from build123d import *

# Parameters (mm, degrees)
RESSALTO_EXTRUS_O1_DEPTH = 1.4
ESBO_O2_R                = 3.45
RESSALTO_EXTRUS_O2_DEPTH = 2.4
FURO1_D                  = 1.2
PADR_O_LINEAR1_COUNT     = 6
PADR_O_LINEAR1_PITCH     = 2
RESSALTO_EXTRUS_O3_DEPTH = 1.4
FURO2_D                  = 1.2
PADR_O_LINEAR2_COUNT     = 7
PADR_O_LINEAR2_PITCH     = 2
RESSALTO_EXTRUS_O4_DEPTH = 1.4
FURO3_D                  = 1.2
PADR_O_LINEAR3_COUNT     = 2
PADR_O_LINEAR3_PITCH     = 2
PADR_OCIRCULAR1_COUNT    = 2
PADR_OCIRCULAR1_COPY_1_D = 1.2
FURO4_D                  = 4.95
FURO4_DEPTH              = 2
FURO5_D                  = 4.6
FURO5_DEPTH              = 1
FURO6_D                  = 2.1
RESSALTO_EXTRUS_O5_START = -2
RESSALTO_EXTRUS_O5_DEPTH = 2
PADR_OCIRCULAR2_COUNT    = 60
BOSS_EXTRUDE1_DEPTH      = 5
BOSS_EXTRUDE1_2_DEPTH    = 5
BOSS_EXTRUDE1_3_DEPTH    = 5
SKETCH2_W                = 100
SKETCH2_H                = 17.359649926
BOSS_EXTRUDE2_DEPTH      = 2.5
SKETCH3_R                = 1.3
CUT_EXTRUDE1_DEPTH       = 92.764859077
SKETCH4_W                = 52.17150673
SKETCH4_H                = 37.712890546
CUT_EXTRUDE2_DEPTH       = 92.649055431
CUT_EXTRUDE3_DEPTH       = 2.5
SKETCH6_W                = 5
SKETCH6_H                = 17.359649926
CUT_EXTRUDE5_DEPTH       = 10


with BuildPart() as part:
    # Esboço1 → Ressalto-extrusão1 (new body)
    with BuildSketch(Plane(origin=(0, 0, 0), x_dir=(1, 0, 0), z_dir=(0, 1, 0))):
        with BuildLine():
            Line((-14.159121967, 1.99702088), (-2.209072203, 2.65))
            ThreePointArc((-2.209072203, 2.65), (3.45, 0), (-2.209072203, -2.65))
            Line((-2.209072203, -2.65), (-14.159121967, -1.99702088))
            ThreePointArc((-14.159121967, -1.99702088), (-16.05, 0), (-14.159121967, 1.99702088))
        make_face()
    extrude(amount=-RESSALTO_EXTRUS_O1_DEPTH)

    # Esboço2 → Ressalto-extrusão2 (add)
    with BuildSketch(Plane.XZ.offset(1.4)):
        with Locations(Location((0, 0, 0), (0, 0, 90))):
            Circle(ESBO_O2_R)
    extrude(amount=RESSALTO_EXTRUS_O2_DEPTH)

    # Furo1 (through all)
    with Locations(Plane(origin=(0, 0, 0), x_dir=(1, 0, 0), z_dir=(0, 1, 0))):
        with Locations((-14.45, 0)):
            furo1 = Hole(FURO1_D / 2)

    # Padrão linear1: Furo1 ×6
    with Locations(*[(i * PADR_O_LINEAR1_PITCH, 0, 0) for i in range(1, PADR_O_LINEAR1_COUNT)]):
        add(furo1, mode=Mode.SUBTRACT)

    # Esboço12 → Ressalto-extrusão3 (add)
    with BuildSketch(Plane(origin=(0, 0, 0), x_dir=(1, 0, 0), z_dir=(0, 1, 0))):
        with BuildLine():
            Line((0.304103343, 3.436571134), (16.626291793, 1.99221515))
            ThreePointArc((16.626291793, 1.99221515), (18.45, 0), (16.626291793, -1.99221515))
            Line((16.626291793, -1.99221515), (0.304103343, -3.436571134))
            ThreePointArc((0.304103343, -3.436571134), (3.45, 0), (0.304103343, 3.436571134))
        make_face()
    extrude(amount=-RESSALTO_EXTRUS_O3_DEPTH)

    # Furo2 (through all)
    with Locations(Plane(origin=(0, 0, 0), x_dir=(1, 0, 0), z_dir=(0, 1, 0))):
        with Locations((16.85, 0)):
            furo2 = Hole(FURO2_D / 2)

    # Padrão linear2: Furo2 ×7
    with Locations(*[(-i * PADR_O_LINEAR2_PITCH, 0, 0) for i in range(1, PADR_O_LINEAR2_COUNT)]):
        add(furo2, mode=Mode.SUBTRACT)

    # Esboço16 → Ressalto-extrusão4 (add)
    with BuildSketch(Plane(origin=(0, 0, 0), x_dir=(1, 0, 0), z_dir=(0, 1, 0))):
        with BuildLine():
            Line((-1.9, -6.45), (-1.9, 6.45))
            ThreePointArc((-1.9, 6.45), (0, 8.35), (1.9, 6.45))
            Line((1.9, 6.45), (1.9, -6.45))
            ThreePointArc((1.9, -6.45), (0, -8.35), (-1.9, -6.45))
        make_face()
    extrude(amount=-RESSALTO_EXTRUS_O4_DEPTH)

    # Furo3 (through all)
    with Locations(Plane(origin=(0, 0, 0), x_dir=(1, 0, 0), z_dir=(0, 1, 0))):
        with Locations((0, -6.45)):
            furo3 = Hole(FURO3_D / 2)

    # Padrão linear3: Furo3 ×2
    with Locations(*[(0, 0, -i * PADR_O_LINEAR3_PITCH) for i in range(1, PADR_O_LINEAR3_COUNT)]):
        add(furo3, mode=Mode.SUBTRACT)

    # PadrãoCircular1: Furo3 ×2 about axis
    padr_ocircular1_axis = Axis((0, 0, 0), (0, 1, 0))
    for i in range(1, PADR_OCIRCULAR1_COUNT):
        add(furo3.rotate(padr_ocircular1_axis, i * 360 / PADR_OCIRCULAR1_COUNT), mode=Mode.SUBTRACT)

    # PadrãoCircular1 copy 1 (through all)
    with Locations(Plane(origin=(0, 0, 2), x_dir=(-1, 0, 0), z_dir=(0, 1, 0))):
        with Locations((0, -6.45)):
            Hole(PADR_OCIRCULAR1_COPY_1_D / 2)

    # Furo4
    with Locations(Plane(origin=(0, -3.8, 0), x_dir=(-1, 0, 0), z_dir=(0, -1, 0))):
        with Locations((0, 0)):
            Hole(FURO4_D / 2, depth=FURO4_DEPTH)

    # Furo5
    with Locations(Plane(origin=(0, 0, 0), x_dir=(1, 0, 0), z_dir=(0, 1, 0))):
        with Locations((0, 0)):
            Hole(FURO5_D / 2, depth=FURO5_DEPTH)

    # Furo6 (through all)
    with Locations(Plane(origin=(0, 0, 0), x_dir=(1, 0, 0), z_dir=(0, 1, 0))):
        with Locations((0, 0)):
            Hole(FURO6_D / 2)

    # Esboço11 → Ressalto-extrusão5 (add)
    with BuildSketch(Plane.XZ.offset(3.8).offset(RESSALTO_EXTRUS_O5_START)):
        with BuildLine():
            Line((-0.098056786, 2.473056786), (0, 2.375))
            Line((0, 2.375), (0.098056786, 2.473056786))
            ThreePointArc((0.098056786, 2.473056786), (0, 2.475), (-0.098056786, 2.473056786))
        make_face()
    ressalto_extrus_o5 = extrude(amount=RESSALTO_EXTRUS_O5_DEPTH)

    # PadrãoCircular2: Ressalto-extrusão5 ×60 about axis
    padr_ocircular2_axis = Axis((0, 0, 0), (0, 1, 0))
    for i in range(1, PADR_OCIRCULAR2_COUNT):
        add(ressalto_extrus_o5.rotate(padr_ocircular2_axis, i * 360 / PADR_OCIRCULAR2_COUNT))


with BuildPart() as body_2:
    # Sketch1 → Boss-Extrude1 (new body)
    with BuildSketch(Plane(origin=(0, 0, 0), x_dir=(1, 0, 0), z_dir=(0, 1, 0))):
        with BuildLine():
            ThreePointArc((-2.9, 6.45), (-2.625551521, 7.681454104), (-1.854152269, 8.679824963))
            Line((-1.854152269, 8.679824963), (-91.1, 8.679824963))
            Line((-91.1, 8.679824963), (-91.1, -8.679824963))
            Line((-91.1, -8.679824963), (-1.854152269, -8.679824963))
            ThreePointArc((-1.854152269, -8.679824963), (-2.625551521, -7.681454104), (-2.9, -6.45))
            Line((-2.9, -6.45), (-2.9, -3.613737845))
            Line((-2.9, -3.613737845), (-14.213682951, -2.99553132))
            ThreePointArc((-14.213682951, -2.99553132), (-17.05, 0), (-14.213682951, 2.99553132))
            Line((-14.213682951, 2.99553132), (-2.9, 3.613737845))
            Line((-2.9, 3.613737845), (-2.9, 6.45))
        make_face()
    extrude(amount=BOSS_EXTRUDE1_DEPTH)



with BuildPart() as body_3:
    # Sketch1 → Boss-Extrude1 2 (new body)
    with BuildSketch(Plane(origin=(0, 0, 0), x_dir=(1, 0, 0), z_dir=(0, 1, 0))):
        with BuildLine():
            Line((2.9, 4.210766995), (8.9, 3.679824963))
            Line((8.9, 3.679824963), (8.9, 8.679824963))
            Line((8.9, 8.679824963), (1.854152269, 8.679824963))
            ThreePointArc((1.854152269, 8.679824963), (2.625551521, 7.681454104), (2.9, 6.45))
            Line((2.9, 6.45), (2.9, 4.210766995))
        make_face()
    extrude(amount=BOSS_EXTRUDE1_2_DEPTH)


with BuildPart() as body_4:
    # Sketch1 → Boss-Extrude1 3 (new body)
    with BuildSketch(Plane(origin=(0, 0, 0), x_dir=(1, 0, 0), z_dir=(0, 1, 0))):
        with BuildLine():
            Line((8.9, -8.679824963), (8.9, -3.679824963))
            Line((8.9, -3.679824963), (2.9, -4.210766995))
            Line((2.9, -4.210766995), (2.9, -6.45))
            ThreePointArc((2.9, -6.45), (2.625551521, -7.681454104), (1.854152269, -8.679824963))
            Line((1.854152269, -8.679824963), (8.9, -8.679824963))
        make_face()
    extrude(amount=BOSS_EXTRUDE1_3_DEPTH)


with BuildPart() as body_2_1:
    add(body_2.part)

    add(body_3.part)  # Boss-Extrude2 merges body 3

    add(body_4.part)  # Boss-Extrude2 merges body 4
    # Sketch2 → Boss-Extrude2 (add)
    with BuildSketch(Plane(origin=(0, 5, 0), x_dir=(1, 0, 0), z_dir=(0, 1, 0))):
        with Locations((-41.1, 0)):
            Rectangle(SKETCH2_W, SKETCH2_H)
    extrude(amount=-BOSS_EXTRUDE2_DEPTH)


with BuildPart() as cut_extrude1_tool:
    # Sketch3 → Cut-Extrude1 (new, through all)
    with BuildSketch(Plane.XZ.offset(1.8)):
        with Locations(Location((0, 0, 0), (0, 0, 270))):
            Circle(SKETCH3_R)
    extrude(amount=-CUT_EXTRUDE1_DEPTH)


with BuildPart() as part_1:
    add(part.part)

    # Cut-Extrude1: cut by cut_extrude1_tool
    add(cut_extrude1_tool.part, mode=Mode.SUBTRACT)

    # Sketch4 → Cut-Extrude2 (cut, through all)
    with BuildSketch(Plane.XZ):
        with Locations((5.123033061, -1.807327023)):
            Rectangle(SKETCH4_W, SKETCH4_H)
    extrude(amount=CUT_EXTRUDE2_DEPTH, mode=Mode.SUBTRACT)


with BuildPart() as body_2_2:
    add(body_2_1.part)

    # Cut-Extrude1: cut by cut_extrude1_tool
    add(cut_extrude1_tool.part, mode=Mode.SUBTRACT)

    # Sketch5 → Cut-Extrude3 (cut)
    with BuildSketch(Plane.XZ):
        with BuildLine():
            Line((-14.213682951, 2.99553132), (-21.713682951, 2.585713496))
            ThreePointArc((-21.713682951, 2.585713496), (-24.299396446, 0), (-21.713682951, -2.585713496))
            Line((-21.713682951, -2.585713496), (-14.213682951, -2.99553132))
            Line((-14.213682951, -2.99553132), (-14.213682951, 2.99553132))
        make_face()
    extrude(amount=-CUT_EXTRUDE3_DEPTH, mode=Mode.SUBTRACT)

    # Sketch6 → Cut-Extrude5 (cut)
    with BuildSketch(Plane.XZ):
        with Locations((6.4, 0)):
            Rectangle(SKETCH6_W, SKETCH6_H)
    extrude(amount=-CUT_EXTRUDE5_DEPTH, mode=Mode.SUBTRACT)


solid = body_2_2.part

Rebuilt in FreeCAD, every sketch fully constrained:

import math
import FreeCAD as App
import Part
import Sketcher


def add_polygon(sketch, points):
    """Adds a closed chain of lines whose ends are joined by coincident constraints."""
    first, n = sketch.GeometryCount, len(points)
    for a, b in zip(points, points[1:] + points[:1]):
        sketch.addGeometry(Part.LineSegment(App.Vector(*a, 0), App.Vector(*b, 0)), False)
    for i in range(n):
        sketch.addConstraint(Sketcher.Constraint("Coincident", first + i, 2, first + (i + 1) % n, 1))

doc = App.newDocument("Part")
body = doc.addObject("PartDesign::Body", "Body")

# Sketch on XZ plane
sketch1 = body.newObject("Sketcher::SketchObject", "Sketch")
sketch1.AttachmentSupport = (doc.getObject("XZ_Plane"), [""])
sketch1.MapMode = "FlatFace"
sketch1.addGeometry(Part.LineSegment(App.Vector(-2.2, -2.6, 0), App.Vector(-14.2, -2, 0)), False)
sketch1.addGeometry(Part.ArcOfCircle(Part.Circle(App.Vector(-14.1, 0, 0), App.Vector(0, 0, 1), 2), math.radians(93), math.radians(267)), False)
sketch1.addGeometry(Part.LineSegment(App.Vector(-14.2, 2, 0), App.Vector(-2.2, 2.6, 0)), False)
sketch1.addGeometry(Part.ArcOfCircle(Part.Circle(App.Vector(0, 0, 0), App.Vector(0, 0, 1), 3.5), math.radians(-130), math.radians(130)), False)
sketch1.addConstraint(Sketcher.Constraint("Tangent", 0, 2, 1, 2))
sketch1.addConstraint(Sketcher.Constraint("Tangent", 1, 1, 2, 1))
sketch1.addConstraint(Sketcher.Constraint("Coincident", 2, 2, 3, 2))
sketch1.addConstraint(Sketcher.Constraint("Coincident", 3, 1, 0, 1))
sketch1.addConstraint(Sketcher.Constraint("Coincident", 3, 3, -1, 1))
sketch1.addConstraint(Sketcher.Constraint("Symmetric", 0, 2, 1, 1, -1))
sketch1.addConstraint(Sketcher.Constraint("Radius", 1, 2.0))
sketch1.addConstraint(Sketcher.Constraint("Radius", 3, 3.45))
sketch1.addConstraint(Sketcher.Constraint("DistanceY", 3, 1, 2, 2, 5.3))
sketch1.addConstraint(Sketcher.Constraint("DistanceX", 1, 3, -1, 1, 14.05))
pad1 = body.newObject("PartDesign::Pad", "Pad")
pad1.Profile = sketch1
pad1.Length = 1.4

# Sketch on XZ plane
sketch2 = body.newObject("Sketcher::SketchObject", "Sketch001")
sketch2.AttachmentSupport = (doc.getObject("XZ_Plane"), [""])
sketch2.MapMode = "FlatFace"
sketch2.AttachmentOffset = App.Placement(App.Vector(0, 0, 1.4), App.Rotation())
sketch2.addGeometry(Part.Circle(App.Vector(0, 0, 0), App.Vector(0, 0, 1), 3.5), False)
sketch2.addConstraint(Sketcher.Constraint("Coincident", 0, 3, -1, 1))
sketch2.addConstraint(Sketcher.Constraint("Diameter", 0, 6.9))
pad2 = body.newObject("PartDesign::Pad", "Pad001")
pad2.Profile = sketch2
pad2.Length = 2.4

# Sketch on XZ plane
sketch3 = body.newObject("Sketcher::SketchObject", "Sketch002")
sketch3.AttachmentSupport = (doc.getObject("XZ_Plane"), [""])
sketch3.MapMode = "FlatFace"
sketch3.addGeometry(Part.Circle(App.Vector(-14.4, 0, 0), App.Vector(0, 0, 1), 0.6), False)
sketch3.addConstraint(Sketcher.Constraint("PointOnObject", 0, 3, -1))
sketch3.addConstraint(Sketcher.Constraint("Diameter", 0, 1.2))
sketch3.addConstraint(Sketcher.Constraint("DistanceX", 0, 3, -1, 1, 14.45))
doc.recompute()
hole = body.newObject("PartDesign::Hole", "Hole")
hole.Profile = sketch3
hole.ThreadType = "None"
hole.Diameter = 1.2
hole.DepthType = "ThroughAll"
hole.Reversed = True
doc.recompute()

linearpattern = body.newObject("PartDesign::LinearPattern", "LinearPattern")
linearpattern.Originals = [hole]
linearpattern.Direction = (doc.getObject("X_Axis"), [""])
linearpattern.Mode = "offset"
linearpattern.Offset = 2
linearpattern.Occurrences = 6
body.Tip = linearpattern

# Sketch on XZ plane
sketch4 = body.newObject("Sketcher::SketchObject", "Sketch003")
sketch4.AttachmentSupport = (doc.getObject("XZ_Plane"), [""])
sketch4.MapMode = "FlatFace"
sketch4.addGeometry(Part.LineSegment(App.Vector(16.6, -2, 0), App.Vector(0.3, -3.4, 0)), False)
sketch4.addGeometry(Part.ArcOfCircle(Part.Circle(App.Vector(0, 0, 0), App.Vector(0, 0, 1), 3.5), math.radians(-85), math.radians(85)), False)
sketch4.addGeometry(Part.LineSegment(App.Vector(0.3, 3.4, 0), App.Vector(16.6, 2, 0)), False)
sketch4.addGeometry(Part.ArcOfCircle(Part.Circle(App.Vector(16.4, 0, 0), App.Vector(0, 0, 1), 2), math.radians(-85), math.radians(85)), False)
sketch4.addConstraint(Sketcher.Constraint("Tangent", 0, 2, 1, 1))
sketch4.addConstraint(Sketcher.Constraint("Tangent", 1, 2, 2, 1))
sketch4.addConstraint(Sketcher.Constraint("Tangent", 2, 2, 3, 2))
sketch4.addConstraint(Sketcher.Constraint("Tangent", 3, 1, 0, 1))
sketch4.addConstraint(Sketcher.Constraint("Coincident", 1, 3, -1, 1))
sketch4.addConstraint(Sketcher.Constraint("PointOnObject", 3, 3, -1))
sketch4.addConstraint(Sketcher.Constraint("Radius", 3, 2.0))
sketch4.addConstraint(Sketcher.Constraint("Radius", 1, 3.45))
sketch4.addConstraint(Sketcher.Constraint("DistanceX", -1, 1, 3, 3, 16.45))
pad3 = body.newObject("PartDesign::Pad", "Pad002")
pad3.Profile = sketch4
pad3.Length = 1.4

# Sketch on XZ plane
sketch5 = body.newObject("Sketcher::SketchObject", "Sketch004")
sketch5.AttachmentSupport = (doc.getObject("XZ_Plane"), [""])
sketch5.MapMode = "FlatFace"
sketch5.addGeometry(Part.Circle(App.Vector(16.9, 0, 0), App.Vector(0, 0, 1), 0.6), False)
sketch5.addConstraint(Sketcher.Constraint("PointOnObject", 0, 3, -1))
sketch5.addConstraint(Sketcher.Constraint("Diameter", 0, 1.2))
sketch5.addConstraint(Sketcher.Constraint("DistanceX", -1, 1, 0, 3, 16.85))
doc.recompute()
hole2 = body.newObject("PartDesign::Hole", "Hole001")
hole2.Profile = sketch5
hole2.ThreadType = "None"
hole2.Diameter = 1.2
hole2.DepthType = "ThroughAll"
hole2.Reversed = True
doc.recompute()

linearpattern2 = body.newObject("PartDesign::LinearPattern", "LinearPattern001")
linearpattern2.Originals = [hole2]
linearpattern2.Direction = (doc.getObject("X_Axis"), [""])
linearpattern2.Mode = "offset"
linearpattern2.Offset = 2
linearpattern2.Occurrences = 7
linearpattern2.Reversed = True
body.Tip = linearpattern2

# Sketch on XZ plane
sketch6 = body.newObject("Sketcher::SketchObject", "Sketch005")
sketch6.AttachmentSupport = (doc.getObject("XZ_Plane"), [""])
sketch6.MapMode = "FlatFace"
sketch6.addGeometry(Part.LineSegment(App.Vector(-1.9, -6.5, 0), App.Vector(-1.9, 6.5, 0)), False)
sketch6.addGeometry(Part.ArcOfCircle(Part.Circle(App.Vector(0, 6.5, 0), App.Vector(0, 0, 1), 1.9), math.radians(0), math.radians(180)), False)
sketch6.addGeometry(Part.LineSegment(App.Vector(1.9, 6.5, 0), App.Vector(1.9, -6.5, 0)), False)
sketch6.addGeometry(Part.ArcOfCircle(Part.Circle(App.Vector(0, -6.5, 0), App.Vector(0, 0, 1), 1.9), math.radians(180), math.radians(360)), False)
sketch6.addConstraint(Sketcher.Constraint("Tangent", 0, 2, 1, 2))
sketch6.addConstraint(Sketcher.Constraint("Tangent", 1, 1, 2, 1))
sketch6.addConstraint(Sketcher.Constraint("Tangent", 2, 2, 3, 2))
sketch6.addConstraint(Sketcher.Constraint("Tangent", 3, 1, 0, 1))
sketch6.addConstraint(Sketcher.Constraint("Vertical", 0))
sketch6.addConstraint(Sketcher.Constraint("Vertical", 2))
sketch6.addConstraint(Sketcher.Constraint("Symmetric", 1, 3, 3, 3, -1, 1))
sketch6.addConstraint(Sketcher.Constraint("Radius", 1, 1.9))
sketch6.addConstraint(Sketcher.Constraint("DistanceY", 0, 1, 0, 2, 12.9))
pad4 = body.newObject("PartDesign::Pad", "Pad003")
pad4.Profile = sketch6
pad4.Length = 1.4

# Sketch on XZ plane
sketch7 = body.newObject("Sketcher::SketchObject", "Sketch006")
sketch7.AttachmentSupport = (doc.getObject("XZ_Plane"), [""])
sketch7.MapMode = "FlatFace"
sketch7.addGeometry(Part.Circle(App.Vector(0, 6.5, 0), App.Vector(0, 0, 1), 0.6), False)
sketch7.addConstraint(Sketcher.Constraint("PointOnObject", 0, 3, -2))
sketch7.addConstraint(Sketcher.Constraint("Diameter", 0, 1.2))
sketch7.addConstraint(Sketcher.Constraint("DistanceY", -1, 1, 0, 3, 6.45))
doc.recompute()
hole3 = body.newObject("PartDesign::Hole", "Hole002")
hole3.Profile = sketch7
hole3.ThreadType = "None"
hole3.Diameter = 1.2
hole3.DepthType = "ThroughAll"
hole3.Reversed = True
doc.recompute()

linearpattern3 = body.newObject("PartDesign::LinearPattern", "LinearPattern002")
linearpattern3.Originals = [hole3]
linearpattern3.Direction = (doc.getObject("Z_Axis"), [""])
linearpattern3.Mode = "offset"
linearpattern3.Offset = 2
linearpattern3.Occurrences = 2
linearpattern3.Reversed = True
body.Tip = linearpattern3
doc.recompute()

polarpattern = body.newObject("PartDesign::PolarPattern", "PolarPattern")
polarpattern.Originals = [hole3]
polarpattern.Axis = (doc.getObject("Y_Axis"), [""])
polarpattern.Angle = 360
polarpattern.Occurrences = 2
body.Tip = polarpattern

# Sketch on XZ plane
sketch8 = body.newObject("Sketcher::SketchObject", "Sketch007")
sketch8.AttachmentSupport = (doc.getObject("XZ_Plane"), [""])
sketch8.MapMode = "FlatFace"
sketch8.addGeometry(Part.Circle(App.Vector(0, -4.5, 0), App.Vector(0, 0, 1), 0.6), False)
sketch8.addConstraint(Sketcher.Constraint("PointOnObject", 0, 3, -2))
sketch8.addConstraint(Sketcher.Constraint("Diameter", 0, 1.2))
sketch8.addConstraint(Sketcher.Constraint("DistanceY", 0, 3, -1, 1, 4.45))
doc.recompute()
hole4 = body.newObject("PartDesign::Hole", "Hole003")
hole4.Profile = sketch8
hole4.ThreadType = "None"
hole4.Diameter = 1.2
hole4.DepthType = "ThroughAll"
hole4.Reversed = True

# Sketch on XZ plane
sketch9 = body.newObject("Sketcher::SketchObject", "Sketch008")
sketch9.AttachmentSupport = (doc.getObject("XZ_Plane"), [""])
sketch9.MapMode = "FlatFace"
sketch9.AttachmentOffset = App.Placement(App.Vector(0, 0, 3.8), App.Rotation())
sketch9.addGeometry(Part.Circle(App.Vector(0, 0, 0), App.Vector(0, 0, 1), 2.5), False)
sketch9.addConstraint(Sketcher.Constraint("Coincident", 0, 3, -1, 1))
sketch9.addConstraint(Sketcher.Constraint("Diameter", 0, 4.95))
doc.recompute()
hole5 = body.newObject("PartDesign::Hole", "Hole004")
hole5.Profile = sketch9
hole5.ThreadType = "None"
hole5.Diameter = 4.95
hole5.DepthType = "Dimension"
hole5.Depth = 2
hole5.DrillPoint = "Flat"

# Sketch on XZ plane
sketch10 = body.newObject("Sketcher::SketchObject", "Sketch009")
sketch10.AttachmentSupport = (doc.getObject("XZ_Plane"), [""])
sketch10.MapMode = "FlatFace"
sketch10.addGeometry(Part.Circle(App.Vector(0, 0, 0), App.Vector(0, 0, 1), 2.3), False)
sketch10.addConstraint(Sketcher.Constraint("Coincident", 0, 3, -1, 1))
sketch10.addConstraint(Sketcher.Constraint("Diameter", 0, 4.6))
doc.recompute()
hole6 = body.newObject("PartDesign::Hole", "Hole005")
hole6.Profile = sketch10
hole6.ThreadType = "None"
hole6.Diameter = 4.6
hole6.DepthType = "Dimension"
hole6.Depth = 1
hole6.DrillPoint = "Flat"
hole6.Reversed = True

# Sketch on XZ plane
sketch11 = body.newObject("Sketcher::SketchObject", "Sketch010")
sketch11.AttachmentSupport = (doc.getObject("XZ_Plane"), [""])
sketch11.MapMode = "FlatFace"
sketch11.addGeometry(Part.Circle(App.Vector(0, 0, 0), App.Vector(0, 0, 1), 1.1), False)
sketch11.addConstraint(Sketcher.Constraint("Coincident", 0, 3, -1, 1))
sketch11.addConstraint(Sketcher.Constraint("Diameter", 0, 2.1))
doc.recompute()
hole7 = body.newObject("PartDesign::Hole", "Hole006")
hole7.Profile = sketch11
hole7.ThreadType = "None"
hole7.Diameter = 2.1
hole7.DepthType = "ThroughAll"
hole7.Reversed = True

# Sketch on XZ plane
sketch12 = body.newObject("Sketcher::SketchObject", "Sketch011")
sketch12.AttachmentSupport = (doc.getObject("XZ_Plane"), [""])
sketch12.MapMode = "FlatFace"
sketch12.AttachmentOffset = App.Placement(App.Vector(0, 0, 1.8), App.Rotation())
sketch12.addGeometry(Part.LineSegment(App.Vector(-0.1, 2.47, 0), App.Vector(0, 2.38, 0)), False)
sketch12.addGeometry(Part.LineSegment(App.Vector(0, 2.38, 0), App.Vector(0.1, 2.47, 0)), False)
sketch12.addGeometry(Part.ArcOfCircle(Part.Circle(App.Vector(0, 0, 0), App.Vector(0, 0, 1), 2.48), math.radians(87.73), math.radians(92.27)), False)
sketch12.addConstraint(Sketcher.Constraint("Coincident", 0, 2, 1, 1))
sketch12.addConstraint(Sketcher.Constraint("Coincident", 1, 2, 2, 1))
sketch12.addConstraint(Sketcher.Constraint("Coincident", 2, 2, 0, 1))
sketch12.addConstraint(Sketcher.Constraint("Coincident", 2, 3, -1, 1))
sketch12.addConstraint(Sketcher.Constraint("PointOnObject", 0, 2, -2))
sketch12.addConstraint(Sketcher.Constraint("Perpendicular", 0, 1))
sketch12.addConstraint(Sketcher.Constraint("Horizontal", 1, 2, 2, 2))
sketch12.addConstraint(Sketcher.Constraint("Radius", 2, 2.475))
sketch12.addConstraint(Sketcher.Constraint("DistanceY", -1, 1, 0, 2, 2.375))
pad5 = body.newObject("PartDesign::Pad", "Pad004")
pad5.Profile = sketch12
pad5.Length = 2
doc.recompute()

polarpattern2 = body.newObject("PartDesign::PolarPattern", "PolarPattern001")
polarpattern2.Originals = [pad5]
polarpattern2.Axis = (doc.getObject("Y_Axis"), [""])
polarpattern2.Angle = 360
polarpattern2.Occurrences = 60
body.Tip = polarpattern2
body2 = doc.addObject("PartDesign::Body", "Body001")

# Sketch on XZ plane
sketch13 = body2.newObject("Sketcher::SketchObject", "Sketch012")
sketch13.AttachmentSupport = (doc.getObject("XZ_Plane001"), [""])
sketch13.MapMode = "FlatFace"
sketch13.addGeometry(Part.ArcOfCircle(Part.Circle(App.Vector(0, -6.4, 0), App.Vector(0, 0, 1), 2.9), math.radians(-180), math.radians(-130)), False)
sketch13.addGeometry(Part.LineSegment(App.Vector(-1.9, -8.7, 0), App.Vector(-91.1, -8.7, 0)), False)
sketch13.addGeometry(Part.LineSegment(App.Vector(-91.1, -8.7, 0), App.Vector(-91.1, 8.7, 0)), False)
sketch13.addGeometry(Part.LineSegment(App.Vector(-91.1, 8.7, 0), App.Vector(-1.9, 8.7, 0)), False)
sketch13.addGeometry(Part.ArcOfCircle(Part.Circle(App.Vector(0, 6.4, 0), App.Vector(0, 0, 1), 2.9), math.radians(130), math.radians(180)), False)
sketch13.addGeometry(Part.LineSegment(App.Vector(-2.9, 6.5, 0), App.Vector(-2.9, 3.6, 0)), False)
sketch13.addGeometry(Part.LineSegment(App.Vector(-2.9, 3.6, 0), App.Vector(-14.2, 3, 0)), False)
sketch13.addGeometry(Part.ArcOfCircle(Part.Circle(App.Vector(-14.1, 0, 0), App.Vector(0, 0, 1), 3), math.radians(93), math.radians(267)), False)
sketch13.addGeometry(Part.LineSegment(App.Vector(-14.2, -3, 0), App.Vector(-2.9, -3.6, 0)), False)
sketch13.addGeometry(Part.LineSegment(App.Vector(-2.9, -3.6, 0), App.Vector(-2.9, -6.5, 0)), False)
sketch13.addConstraint(Sketcher.Constraint("Coincident", 0, 2, 1, 1))
sketch13.addConstraint(Sketcher.Constraint("Coincident", 1, 2, 2, 1))
sketch13.addConstraint(Sketcher.Constraint("Coincident", 2, 2, 3, 1))
sketch13.addConstraint(Sketcher.Constraint("Coincident", 3, 2, 4, 1))
sketch13.addConstraint(Sketcher.Constraint("Tangent", 4, 2, 5, 1))
sketch13.addConstraint(Sketcher.Constraint("Coincident", 5, 2, 6, 1))
sketch13.addConstraint(Sketcher.Constraint("Tangent", 6, 2, 7, 1))
sketch13.addConstraint(Sketcher.Constraint("Tangent", 7, 2, 8, 1))
sketch13.addConstraint(Sketcher.Constraint("Coincident", 8, 2, 9, 1))
sketch13.addConstraint(Sketcher.Constraint("Tangent", 9, 2, 0, 1))
sketch13.addConstraint(Sketcher.Constraint("Horizontal", 1))
sketch13.addConstraint(Sketcher.Constraint("Vertical", 2))
sketch13.addConstraint(Sketcher.Constraint("Horizontal", 3))
sketch13.addConstraint(Sketcher.Constraint("Vertical", 5))
sketch13.addConstraint(Sketcher.Constraint("Vertical", 9))
sketch13.addConstraint(Sketcher.Constraint("Equal", 0, 4))
sketch13.addConstraint(Sketcher.Constraint("Symmetric", 0, 3, 4, 3, -1, 1))
sketch13.addConstraint(Sketcher.Constraint("Symmetric", 0, 2, 3, 2, -1))
sketch13.addConstraint(Sketcher.Constraint("Symmetric", 6, 2, 7, 2, -1))
sketch13.addConstraint(Sketcher.Constraint("Radius", 7, 3.0))
sketch13.addConstraint(Sketcher.Constraint("Radius", 0, 2.9))
sketch13.addConstraint(Sketcher.Constraint("DistanceX", 1, 2, -1, 1, 91.1))
sketch13.addConstraint(Sketcher.Constraint("DistanceY", 0, 3, 4, 3, 12.9))
sketch13.addConstraint(Sketcher.Constraint("DistanceX", 7, 3, -1, 1, 14.05))
sketch13.addConstraint(Sketcher.Constraint("DistanceY", 2, 1, 2, 2, 17.35965))
sketch13.addConstraint(Sketcher.Constraint("Distance", 6, 11.33056))
pad6 = body2.newObject("PartDesign::Pad", "Pad005")
pad6.Profile = sketch13
pad6.Length = 5
pad6.Reversed = True
body3 = doc.addObject("PartDesign::Body", "Body002")

# Sketch on XZ plane
sketch14 = body3.newObject("Sketcher::SketchObject", "Sketch013")
sketch14.AttachmentSupport = (doc.getObject("XZ_Plane002"), [""])
sketch14.MapMode = "FlatFace"
sketch14.addGeometry(Part.LineSegment(App.Vector(2.9, -4.2, 0), App.Vector(8.9, -3.7, 0)), False)
sketch14.addGeometry(Part.LineSegment(App.Vector(8.9, -3.7, 0), App.Vector(8.9, -8.7, 0)), False)
sketch14.addGeometry(Part.LineSegment(App.Vector(8.9, -8.7, 0), App.Vector(1.9, -8.7, 0)), False)
sketch14.addGeometry(Part.ArcOfCircle(Part.Circle(App.Vector(0, -6.4, 0), App.Vector(0, 0, 1), 2.9), math.radians(-50), math.radians(0)), False)
sketch14.addGeometry(Part.LineSegment(App.Vector(2.9, -6.5, 0), App.Vector(2.9, -4.2, 0)), False)
sketch14.addConstraint(Sketcher.Constraint("Coincident", 0, 2, 1, 1))
sketch14.addConstraint(Sketcher.Constraint("Coincident", 1, 2, 2, 1))
sketch14.addConstraint(Sketcher.Constraint("Coincident", 2, 2, 3, 1))
sketch14.addConstraint(Sketcher.Constraint("Tangent", 3, 2, 4, 1))
sketch14.addConstraint(Sketcher.Constraint("Coincident", 4, 2, 0, 1))
sketch14.addConstraint(Sketcher.Constraint("Vertical", 1))
sketch14.addConstraint(Sketcher.Constraint("Horizontal", 2))
sketch14.addConstraint(Sketcher.Constraint("Vertical", 4))
sketch14.addConstraint(Sketcher.Constraint("PointOnObject", 3, 3, -2))
sketch14.addConstraint(Sketcher.Constraint("Radius", 3, 2.9))
sketch14.addConstraint(Sketcher.Constraint("DistanceY", 1, 2, 1, 1, 5.0))
sketch14.addConstraint(Sketcher.Constraint("DistanceX", 3, 2, 1, 2, 6.0))
sketch14.addConstraint(Sketcher.Constraint("DistanceY", 3, 3, -1, 1, 6.45))
sketch14.addConstraint(Sketcher.Constraint("DistanceX", 2, 2, 2, 1, 7.045848))
sketch14.addConstraint(Sketcher.Constraint("DistanceY", 4, 1, 4, 2, 2.239233))
pad7 = body3.newObject("PartDesign::Pad", "Pad006")
pad7.Profile = sketch14
pad7.Length = 5
pad7.Reversed = True
body4 = doc.addObject("PartDesign::Body", "Body003")

# Sketch on XZ plane
sketch15 = body4.newObject("Sketcher::SketchObject", "Sketch014")
sketch15.AttachmentSupport = (doc.getObject("XZ_Plane003"), [""])
sketch15.MapMode = "FlatFace"
sketch15.addGeometry(Part.LineSegment(App.Vector(8.9, 8.7, 0), App.Vector(8.9, 3.7, 0)), False)
sketch15.addGeometry(Part.LineSegment(App.Vector(8.9, 3.7, 0), App.Vector(2.9, 4.2, 0)), False)
sketch15.addGeometry(Part.LineSegment(App.Vector(2.9, 4.2, 0), App.Vector(2.9, 6.5, 0)), False)
sketch15.addGeometry(Part.ArcOfCircle(Part.Circle(App.Vector(0, 6.4, 0), App.Vector(0, 0, 1), 2.9), math.radians(0), math.radians(50)), False)
sketch15.addGeometry(Part.LineSegment(App.Vector(1.9, 8.7, 0), App.Vector(8.9, 8.7, 0)), False)
sketch15.addConstraint(Sketcher.Constraint("Coincident", 0, 2, 1, 1))
sketch15.addConstraint(Sketcher.Constraint("Coincident", 1, 2, 2, 1))
sketch15.addConstraint(Sketcher.Constraint("Tangent", 2, 2, 3, 1))
sketch15.addConstraint(Sketcher.Constraint("Coincident", 3, 2, 4, 1))
sketch15.addConstraint(Sketcher.Constraint("Coincident", 4, 2, 0, 1))
sketch15.addConstraint(Sketcher.Constraint("Vertical", 0))
sketch15.addConstraint(Sketcher.Constraint("Vertical", 2))
sketch15.addConstraint(Sketcher.Constraint("Horizontal", 4))
sketch15.addConstraint(Sketcher.Constraint("PointOnObject", 3, 3, -2))
sketch15.addConstraint(Sketcher.Constraint("Radius", 3, 2.9))
sketch15.addConstraint(Sketcher.Constraint("DistanceY", 0, 2, 0, 1, 5.0))
sketch15.addConstraint(Sketcher.Constraint("DistanceX", 1, 2, 0, 2, 6.0))
sketch15.addConstraint(Sketcher.Constraint("DistanceY", -1, 1, 3, 3, 6.45))
sketch15.addConstraint(Sketcher.Constraint("DistanceX", 4, 1, 4, 2, 7.045848))
sketch15.addConstraint(Sketcher.Constraint("DistanceY", 2, 1, 2, 2, 2.239233))
pad8 = body4.newObject("PartDesign::Pad", "Pad007")
pad8.Profile = sketch15
pad8.Length = 5
pad8.Reversed = True
body2.AllowCompound = True
doc.recompute()

boolean = body2.newObject("PartDesign::Boolean", "Boolean")
boolean.Type = "Fuse"
boolean.addObjects([body3])
doc.recompute()

boolean2 = body2.newObject("PartDesign::Boolean", "Boolean001")
boolean2.Type = "Fuse"
boolean2.addObjects([body4])

# Sketch on XZ plane
sketch16 = body2.newObject("Sketcher::SketchObject", "Sketch015")
sketch16.AttachmentSupport = (doc.getObject("XZ_Plane001"), [""])
sketch16.MapMode = "FlatFace"
sketch16.AttachmentOffset = App.Placement(App.Vector(0, 0, -5), App.Rotation())
add_polygon(sketch16, [(-91, -9), (-91, 9), (9, 9), (9, -9)])  # lines 0-3
sketch16.addConstraint(Sketcher.Constraint("Vertical", 0))
sketch16.addConstraint(Sketcher.Constraint("Horizontal", 1))
sketch16.addConstraint(Sketcher.Constraint("Vertical", 2))
sketch16.addConstraint(Sketcher.Constraint("Horizontal", 3))
sketch16.addConstraint(Sketcher.Constraint("DistanceX", 1, 1, 1, 2, 100.0))
sketch16.addConstraint(Sketcher.Constraint("DistanceX", 0, 2, -1, 1, 91.1))
sketch16.addConstraint(Sketcher.Constraint("DistanceY", 0, 1, 0, 2, 17.35965))
sketch16.addConstraint(Sketcher.Constraint("DistanceY", -1, 1, 0, 2, 8.679825))
pad9 = body2.newObject("PartDesign::Pad", "Pad008")
pad9.Profile = sketch16
pad9.Length = 2.5
body5 = doc.addObject("PartDesign::Body", "Body004")

# Sketch on XZ plane
sketch17 = body5.newObject("Sketcher::SketchObject", "Sketch016")
sketch17.AttachmentSupport = (doc.getObject("XZ_Plane004"), [""])
sketch17.MapMode = "FlatFace"
sketch17.AttachmentOffset = App.Placement(App.Vector(0, 0, 1.8), App.Rotation())
sketch17.addGeometry(Part.Circle(App.Vector(0, 0, 0), App.Vector(0, 0, 1), 1.3), False)
sketch17.addConstraint(Sketcher.Constraint("Coincident", 0, 3, -1, 1))
sketch17.addConstraint(Sketcher.Constraint("Diameter", 0, 2.6))
pad10 = body5.newObject("PartDesign::Pad", "Pad009")
pad10.Profile = sketch17
pad10.Length = 92.764859
pad10.Reversed = True
doc.recompute()

body6 = doc.addObject("PartDesign::Body", "Body005")
body6.BaseFeature = body5
boolean3 = body.newObject("PartDesign::Boolean", "Boolean002")
boolean3.Type = "Cut"
boolean3.addObjects([body6])
doc.recompute()

# Sketch on XZ plane
sketch18 = body.newObject("Sketcher::SketchObject", "Sketch017")
sketch18.AttachmentSupport = (doc.getObject("XZ_Plane"), [""])
sketch18.MapMode = "FlatFace"
add_polygon(sketch18, [(-21, 17), (-21, -21), (31, -21), (31, 17)])  # lines 0-3
sketch18.addConstraint(Sketcher.Constraint("Vertical", 0))
sketch18.addConstraint(Sketcher.Constraint("Horizontal", 1))
sketch18.addConstraint(Sketcher.Constraint("Vertical", 2))
sketch18.addConstraint(Sketcher.Constraint("Horizontal", 3))
sketch18.addConstraint(Sketcher.Constraint("DistanceY", 0, 2, 0, 1, 37.712891))
sketch18.addConstraint(Sketcher.Constraint("DistanceX", 1, 1, 1, 2, 52.171507))
sketch18.addConstraint(Sketcher.Constraint("DistanceX", 0, 2, -1, 1, 20.96272))
sketch18.addConstraint(Sketcher.Constraint("DistanceY", -1, 1, 2, 2, 17.049118))
pocket1 = body.newObject("PartDesign::Pocket", "Pocket")
pocket1.Profile = sketch18
pocket1.Type = "ThroughAll"
pocket1.Reversed = True
doc.recompute()

boolean4 = body2.newObject("PartDesign::Boolean", "Boolean003")
boolean4.Type = "Cut"
boolean4.addObjects([body5])

# Sketch on XZ plane
sketch19 = body2.newObject("Sketcher::SketchObject", "Sketch018")
sketch19.AttachmentSupport = (doc.getObject("XZ_Plane001"), [""])
sketch19.MapMode = "FlatFace"
sketch19.addGeometry(Part.LineSegment(App.Vector(-14.2, 3, 0), App.Vector(-21.7, 2.6, 0)), False)
sketch19.addGeometry(Part.ArcOfCircle(Part.Circle(App.Vector(-21.7, 0, 0), App.Vector(0, 0, 1), 2.6), math.radians(90), math.radians(270)), False)
sketch19.addGeometry(Part.LineSegment(App.Vector(-21.7, -2.6, 0), App.Vector(-14.2, -3, 0)), False)
sketch19.addGeometry(Part.LineSegment(App.Vector(-14.2, -3, 0), App.Vector(-14.2, 3, 0)), False)
sketch19.addConstraint(Sketcher.Constraint("Coincident", 0, 2, 1, 1))
sketch19.addConstraint(Sketcher.Constraint("Coincident", 1, 2, 2, 1))
sketch19.addConstraint(Sketcher.Constraint("Coincident", 2, 2, 3, 1))
sketch19.addConstraint(Sketcher.Constraint("Coincident", 3, 2, 0, 1))
sketch19.addConstraint(Sketcher.Constraint("Vertical", 3))
sketch19.addConstraint(Sketcher.Constraint("Symmetric", 0, 2, 1, 2, -1))
sketch19.addConstraint(Sketcher.Constraint("Vertical", 1, 3, 0, 2))
sketch19.addConstraint(Sketcher.Constraint("Equal", 0, 2))
sketch19.addConstraint(Sketcher.Constraint("DistanceX", 1, 2, 2, 2, 7.5))
sketch19.addConstraint(Sketcher.Constraint("Radius", 1, 2.585713))
sketch19.addConstraint(Sketcher.Constraint("Distance", 0, 7.511188))
sketch19.addConstraint(Sketcher.Constraint("DistanceX", 1, 3, -1, 1, 21.713683))
pocket2 = body2.newObject("PartDesign::Pocket", "Pocket001")
pocket2.Profile = sketch19
pocket2.Length = 2.5

# Sketch on XZ plane
sketch20 = body2.newObject("Sketcher::SketchObject", "Sketch019")
sketch20.AttachmentSupport = (doc.getObject("XZ_Plane001"), [""])
sketch20.MapMode = "FlatFace"
add_polygon(sketch20, [(4, 9), (4, -9), (9, -9), (9, 9)])  # lines 0-3
sketch20.addConstraint(Sketcher.Constraint("Vertical", 0))
sketch20.addConstraint(Sketcher.Constraint("Horizontal", 1))
sketch20.addConstraint(Sketcher.Constraint("Vertical", 2))
sketch20.addConstraint(Sketcher.Constraint("Horizontal", 3))
sketch20.addConstraint(Sketcher.Constraint("DistanceX", 1, 1, 1, 2, 5.0))
sketch20.addConstraint(Sketcher.Constraint("DistanceX", -1, 1, 0, 2, 3.9))
sketch20.addConstraint(Sketcher.Constraint("DistanceY", 0, 2, 0, 1, 17.35965))
sketch20.addConstraint(Sketcher.Constraint("DistanceY", 0, 2, -1, 1, 8.679825))
pocket3 = body2.newObject("PartDesign::Pocket", "Pocket002")
pocket3.Profile = sketch20
pocket3.Length = 10

doc.recompute()
